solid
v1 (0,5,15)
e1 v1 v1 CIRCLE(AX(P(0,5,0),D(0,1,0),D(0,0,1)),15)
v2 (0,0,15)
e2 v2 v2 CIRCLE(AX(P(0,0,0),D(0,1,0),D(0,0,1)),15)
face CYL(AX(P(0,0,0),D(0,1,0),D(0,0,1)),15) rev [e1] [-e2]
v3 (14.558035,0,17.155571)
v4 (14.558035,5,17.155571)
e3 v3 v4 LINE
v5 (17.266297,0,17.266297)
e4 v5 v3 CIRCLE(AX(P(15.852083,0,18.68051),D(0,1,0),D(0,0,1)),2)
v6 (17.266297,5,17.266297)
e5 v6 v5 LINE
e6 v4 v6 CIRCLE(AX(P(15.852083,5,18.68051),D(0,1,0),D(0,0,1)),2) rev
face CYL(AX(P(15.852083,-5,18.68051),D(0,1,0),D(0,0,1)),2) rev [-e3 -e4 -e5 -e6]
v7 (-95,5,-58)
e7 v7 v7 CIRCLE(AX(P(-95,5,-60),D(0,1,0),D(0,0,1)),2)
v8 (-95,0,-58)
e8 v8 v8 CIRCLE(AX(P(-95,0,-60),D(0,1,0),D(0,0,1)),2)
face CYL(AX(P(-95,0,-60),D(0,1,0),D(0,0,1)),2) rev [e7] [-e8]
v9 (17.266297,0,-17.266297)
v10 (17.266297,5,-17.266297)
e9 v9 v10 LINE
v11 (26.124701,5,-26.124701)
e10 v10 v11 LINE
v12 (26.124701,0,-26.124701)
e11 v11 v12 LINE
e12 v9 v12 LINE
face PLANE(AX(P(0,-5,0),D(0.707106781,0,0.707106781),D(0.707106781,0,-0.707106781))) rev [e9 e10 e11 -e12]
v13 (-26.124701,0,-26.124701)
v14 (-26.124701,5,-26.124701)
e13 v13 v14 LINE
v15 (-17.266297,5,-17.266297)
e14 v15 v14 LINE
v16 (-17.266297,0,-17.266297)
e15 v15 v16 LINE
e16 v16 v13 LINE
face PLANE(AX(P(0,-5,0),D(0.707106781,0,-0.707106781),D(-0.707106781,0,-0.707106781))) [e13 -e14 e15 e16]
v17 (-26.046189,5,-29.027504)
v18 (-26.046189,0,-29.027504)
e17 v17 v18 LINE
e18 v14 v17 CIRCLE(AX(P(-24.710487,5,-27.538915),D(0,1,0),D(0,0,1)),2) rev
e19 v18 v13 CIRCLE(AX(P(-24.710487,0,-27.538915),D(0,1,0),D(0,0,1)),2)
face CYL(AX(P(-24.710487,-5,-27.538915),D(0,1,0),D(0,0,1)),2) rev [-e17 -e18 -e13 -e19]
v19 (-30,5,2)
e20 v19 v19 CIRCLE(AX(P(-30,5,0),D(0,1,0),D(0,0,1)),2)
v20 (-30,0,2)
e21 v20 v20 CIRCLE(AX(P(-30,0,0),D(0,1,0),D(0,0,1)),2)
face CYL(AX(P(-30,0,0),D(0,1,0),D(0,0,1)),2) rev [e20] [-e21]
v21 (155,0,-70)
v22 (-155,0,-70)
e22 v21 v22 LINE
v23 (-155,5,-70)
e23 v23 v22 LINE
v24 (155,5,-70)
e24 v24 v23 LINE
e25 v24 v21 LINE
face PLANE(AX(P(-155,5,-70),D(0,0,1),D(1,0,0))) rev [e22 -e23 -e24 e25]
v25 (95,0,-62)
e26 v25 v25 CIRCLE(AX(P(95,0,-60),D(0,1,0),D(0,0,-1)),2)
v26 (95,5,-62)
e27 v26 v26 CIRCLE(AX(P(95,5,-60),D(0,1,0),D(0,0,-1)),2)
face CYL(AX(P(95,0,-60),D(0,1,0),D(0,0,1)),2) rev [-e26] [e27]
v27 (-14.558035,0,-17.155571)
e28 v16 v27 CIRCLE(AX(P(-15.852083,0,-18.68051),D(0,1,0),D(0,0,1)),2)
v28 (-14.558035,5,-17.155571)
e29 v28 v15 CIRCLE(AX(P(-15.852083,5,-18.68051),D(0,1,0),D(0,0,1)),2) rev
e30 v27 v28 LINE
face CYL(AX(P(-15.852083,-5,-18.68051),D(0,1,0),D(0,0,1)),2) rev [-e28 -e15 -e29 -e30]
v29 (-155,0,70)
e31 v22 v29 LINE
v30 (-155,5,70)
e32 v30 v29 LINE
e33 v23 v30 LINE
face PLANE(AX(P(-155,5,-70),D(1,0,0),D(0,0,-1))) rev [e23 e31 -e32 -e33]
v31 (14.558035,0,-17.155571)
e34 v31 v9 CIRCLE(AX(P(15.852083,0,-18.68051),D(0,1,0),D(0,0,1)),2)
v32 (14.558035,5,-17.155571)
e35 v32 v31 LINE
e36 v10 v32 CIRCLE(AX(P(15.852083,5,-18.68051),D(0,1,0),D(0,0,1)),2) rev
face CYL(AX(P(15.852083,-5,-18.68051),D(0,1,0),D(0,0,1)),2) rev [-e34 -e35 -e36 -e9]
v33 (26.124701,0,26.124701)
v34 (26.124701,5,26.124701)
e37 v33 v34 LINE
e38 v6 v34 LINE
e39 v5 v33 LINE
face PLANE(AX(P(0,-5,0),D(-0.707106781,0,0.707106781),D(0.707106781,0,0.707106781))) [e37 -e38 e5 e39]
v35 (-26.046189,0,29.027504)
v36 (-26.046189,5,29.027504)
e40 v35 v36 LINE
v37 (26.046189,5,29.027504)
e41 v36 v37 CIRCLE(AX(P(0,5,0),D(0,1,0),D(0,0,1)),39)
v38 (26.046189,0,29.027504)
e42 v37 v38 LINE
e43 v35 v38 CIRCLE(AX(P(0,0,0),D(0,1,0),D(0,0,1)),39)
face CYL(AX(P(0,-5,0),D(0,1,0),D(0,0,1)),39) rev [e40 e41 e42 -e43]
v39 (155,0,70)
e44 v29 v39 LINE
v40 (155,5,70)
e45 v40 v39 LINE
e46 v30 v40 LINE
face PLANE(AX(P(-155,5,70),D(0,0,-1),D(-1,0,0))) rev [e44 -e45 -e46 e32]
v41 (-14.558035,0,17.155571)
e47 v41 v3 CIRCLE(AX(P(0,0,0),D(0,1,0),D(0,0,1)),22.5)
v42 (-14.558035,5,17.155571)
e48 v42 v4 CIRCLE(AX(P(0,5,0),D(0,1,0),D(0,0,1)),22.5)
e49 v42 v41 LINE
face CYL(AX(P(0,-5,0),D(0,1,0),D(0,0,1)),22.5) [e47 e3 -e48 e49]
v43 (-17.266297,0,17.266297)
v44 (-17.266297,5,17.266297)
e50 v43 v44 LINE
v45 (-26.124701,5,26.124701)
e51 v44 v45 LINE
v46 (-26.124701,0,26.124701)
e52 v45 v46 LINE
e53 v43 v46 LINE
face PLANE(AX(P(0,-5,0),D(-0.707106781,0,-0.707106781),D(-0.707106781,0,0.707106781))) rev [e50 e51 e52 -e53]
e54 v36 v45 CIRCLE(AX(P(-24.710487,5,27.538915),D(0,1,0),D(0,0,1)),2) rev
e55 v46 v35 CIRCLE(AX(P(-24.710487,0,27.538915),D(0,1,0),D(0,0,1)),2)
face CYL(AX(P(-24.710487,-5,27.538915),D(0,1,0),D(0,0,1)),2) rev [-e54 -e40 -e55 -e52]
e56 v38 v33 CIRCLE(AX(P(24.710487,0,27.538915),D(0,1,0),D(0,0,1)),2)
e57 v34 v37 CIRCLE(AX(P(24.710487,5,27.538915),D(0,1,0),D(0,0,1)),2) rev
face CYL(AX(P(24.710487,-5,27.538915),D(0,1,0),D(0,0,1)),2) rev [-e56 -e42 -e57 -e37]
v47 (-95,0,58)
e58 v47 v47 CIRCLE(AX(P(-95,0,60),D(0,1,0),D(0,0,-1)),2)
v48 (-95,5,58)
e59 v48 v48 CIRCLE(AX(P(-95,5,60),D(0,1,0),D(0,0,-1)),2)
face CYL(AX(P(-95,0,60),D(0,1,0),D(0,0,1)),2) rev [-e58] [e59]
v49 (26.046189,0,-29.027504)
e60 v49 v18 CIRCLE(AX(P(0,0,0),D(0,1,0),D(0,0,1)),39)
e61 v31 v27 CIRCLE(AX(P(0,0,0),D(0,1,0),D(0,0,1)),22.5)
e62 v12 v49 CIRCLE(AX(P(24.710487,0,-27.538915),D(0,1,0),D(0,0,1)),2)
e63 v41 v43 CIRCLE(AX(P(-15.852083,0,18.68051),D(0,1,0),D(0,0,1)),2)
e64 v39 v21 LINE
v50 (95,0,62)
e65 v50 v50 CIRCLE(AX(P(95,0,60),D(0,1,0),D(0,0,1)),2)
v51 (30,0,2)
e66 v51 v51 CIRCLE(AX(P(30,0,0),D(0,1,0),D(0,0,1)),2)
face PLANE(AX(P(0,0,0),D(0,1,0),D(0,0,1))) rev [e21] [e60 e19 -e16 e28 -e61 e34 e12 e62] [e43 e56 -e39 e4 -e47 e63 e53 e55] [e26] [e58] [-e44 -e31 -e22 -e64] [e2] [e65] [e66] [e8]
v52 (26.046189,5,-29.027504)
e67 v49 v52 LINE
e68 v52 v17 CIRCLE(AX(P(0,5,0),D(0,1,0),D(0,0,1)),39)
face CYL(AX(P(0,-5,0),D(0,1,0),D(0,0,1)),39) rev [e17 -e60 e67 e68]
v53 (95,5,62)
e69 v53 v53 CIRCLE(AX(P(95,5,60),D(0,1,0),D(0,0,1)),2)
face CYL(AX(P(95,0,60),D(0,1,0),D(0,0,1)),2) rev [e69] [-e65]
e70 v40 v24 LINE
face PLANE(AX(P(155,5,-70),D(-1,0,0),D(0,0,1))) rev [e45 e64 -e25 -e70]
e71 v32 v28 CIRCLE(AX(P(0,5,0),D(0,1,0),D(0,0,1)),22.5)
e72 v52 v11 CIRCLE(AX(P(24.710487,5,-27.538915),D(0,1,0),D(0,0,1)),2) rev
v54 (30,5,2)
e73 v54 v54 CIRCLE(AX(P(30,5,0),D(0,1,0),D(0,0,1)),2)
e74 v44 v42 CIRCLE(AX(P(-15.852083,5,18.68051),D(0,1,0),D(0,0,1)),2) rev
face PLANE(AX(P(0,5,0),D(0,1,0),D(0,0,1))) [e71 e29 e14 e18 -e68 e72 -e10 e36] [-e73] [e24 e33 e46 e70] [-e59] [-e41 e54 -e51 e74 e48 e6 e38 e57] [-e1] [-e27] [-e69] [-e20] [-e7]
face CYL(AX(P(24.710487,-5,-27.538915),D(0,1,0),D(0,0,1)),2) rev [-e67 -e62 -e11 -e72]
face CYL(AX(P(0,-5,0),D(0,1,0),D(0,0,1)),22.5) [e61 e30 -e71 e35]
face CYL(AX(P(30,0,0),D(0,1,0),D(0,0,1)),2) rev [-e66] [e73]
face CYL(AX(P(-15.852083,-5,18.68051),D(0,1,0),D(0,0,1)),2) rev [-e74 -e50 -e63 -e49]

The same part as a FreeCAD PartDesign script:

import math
import FreeCAD as App
import Part
import Sketcher

V = App.Vector


def edges_at(feature, points):
    """Names of the edges that pass closest to the given points."""
    edges = feature.Shape.Edges
    near = lambda p: min(range(len(edges)), key=lambda i: edges[i].distToShape(Part.Vertex(*p))[0])
    return sorted({f"Edge{near(p) + 1}" for p in points})


def add_polygon(sketch, points):
    """Adds a closed chain of lines whose ends are joined by coincident constraints."""
    first, n = sketch.GeometryCount, len(points)
    for a, b in zip(points, points[1:] + points[:1]):
        sketch.addGeometry(Part.LineSegment(App.Vector(*a, 0), App.Vector(*b, 0)), False)
    for i in range(n):
        sketch.addConstraint(Sketcher.Constraint("Coincident", first + i, 2, first + (i + 1) % n, 1))

doc = App.newDocument("Part")
body = doc.addObject("PartDesign::Body", "Body")

# Sketch on XZ plane
sketch1 = doc.addObject("Sketcher::SketchObject", "Sketch")
body.addObject(sketch1)
sketch1.AttachmentSupport = (doc.XZ_Plane, [""])
sketch1.MapMode = "FlatFace"
add_polygon(sketch1, [(-155, -70), (-155, 70), (155, 70), (155, -70)])  # lines 0-3
sketch1.addConstraint(Sketcher.Constraint("Vertical", 0))
sketch1.addConstraint(Sketcher.Constraint("Horizontal", 1))
sketch1.addConstraint(Sketcher.Constraint("Vertical", 2))
sketch1.addConstraint(Sketcher.Constraint("Horizontal", 3))
sketch1.addConstraint(Sketcher.Constraint("Symmetric", 0, 2, 2, 2, -1, 1))
sketch1.addConstraint(Sketcher.Constraint("DistanceX", 1, 1, 1, 2, 310.0))
sketch1.addConstraint(Sketcher.Constraint("DistanceY", 0, 1, 0, 2, 140.0))
pad1 = doc.addObject("PartDesign::Pad", "Pad")
body.addObject(pad1)
pad1.Profile = sketch1
pad1.Length = 5
pad1.Reversed = True

# Sketch on XZ plane
sketch2 = doc.addObject("Sketcher::SketchObject", "Sketch001")
body.addObject(sketch2)
sketch2.AttachmentSupport = (doc.XZ_Plane, [""])
sketch2.MapMode = "FlatFace"
sketch2.AttachmentOffset = App.Placement(V(0, 0, -5), App.Rotation())
sketch2.addGeometry(Part.Circle(V(0, 0, 0), V(0, 0, 1), 15), False)
sketch2.addConstraint(Sketcher.Constraint("Coincident", 0, 3, -1, 1))
sketch2.addConstraint(Sketcher.Constraint("Diameter", 0, 30.0))
pocket1 = doc.addObject("PartDesign::Pocket", "Pocket")
body.addObject(pocket1)
pocket1.Profile = sketch2
pocket1.Type = "ThroughAll"
pocket1.Reversed = True

# Sketch on XZ plane
sketch3 = doc.addObject("Sketcher::SketchObject", "Sketch002")
body.addObject(sketch3)
sketch3.AttachmentSupport = (doc.XZ_Plane, [""])
sketch3.MapMode = "FlatFace"
sketch3.AttachmentOffset = App.Placement(V(0, 0, -5), App.Rotation())
sketch3.addGeometry(Part.Circle(V(-95, -60, 0), V(0, 0, 1), 2), False)
sketch3.addGeometry(Part.Circle(V(95, -60, 0), V(0, 0, 1), 2), False)
sketch3.addGeometry(Part.Circle(V(95, 60, 0), V(0, 0, 1), 2), False)
sketch3.addGeometry(Part.Circle(V(-95, 60, 0), V(0, 0, 1), 2), False)
sketch3.addConstraint(Sketcher.Constraint("Equal", 0, 1))
sketch3.addConstraint(Sketcher.Constraint("Equal", 1, 2))
sketch3.addConstraint(Sketcher.Constraint("Equal", 2, 3))
sketch3.addConstraint(Sketcher.Constraint("Symmetric", 0, 3, 2, 3, -1, 1))
sketch3.addConstraint(Sketcher.Constraint("Symmetric", 1, 3, 3, 3, -1, 1))
sketch3.addConstraint(Sketcher.Constraint("Symmetric", 0, 3, 1, 3, -2))
sketch3.addConstraint(Sketcher.Constraint("Diameter", 0, 4.0))
sketch3.addConstraint(Sketcher.Constraint("DistanceX", 0, 3, -1, 1, 95.0))
sketch3.addConstraint(Sketcher.Constraint("DistanceY", 0, 3, -1, 1, 60.0))
pocket2 = doc.addObject("PartDesign::Pocket", "Pocket001")
body.addObject(pocket2)
pocket2.Profile = sketch3
pocket2.Type = "ThroughAll"
pocket2.Reversed = True

# Sketch on XZ plane
sketch4 = doc.addObject("Sketcher::SketchObject", "Sketch003")
body.addObject(sketch4)
sketch4.AttachmentSupport = (doc.XZ_Plane, [""])
sketch4.MapMode = "FlatFace"
sketch4.AttachmentOffset = App.Placement(V(0, 0, -5), App.Rotation())
sketch4.addGeometry(Part.LineSegment(V(27.577164, 27.577164, 0), V(15.909903, 15.909903, 0)), False)
sketch4.addGeometry(Part.ArcOfCircle(Part.Circle(V(0, 0, 0), V(0, 0, 1), 22.5), math.radians(45), math.radians(135)), False)
sketch4.addGeometry(Part.LineSegment(V(-15.909903, 15.909903, 0), V(-27.577164, 27.577164, 0)), False)
sketch4.addGeometry(Part.ArcOfCircle(Part.Circle(V(0, 0, 0), V(0, 0, 1), 39), math.radians(45), math.radians(135)), False)
sketch4.addGeometry(Part.ArcOfCircle(Part.Circle(V(0, 0, 0), V(0, 0, 1), 22.5), math.radians(-135), math.radians(-45)), False)
sketch4.addGeometry(Part.LineSegment(V(15.909903, -15.909903, 0), V(27.577164, -27.577164, 0)), False)
sketch4.addGeometry(Part.ArcOfCircle(Part.Circle(V(0, 0, 0), V(0, 0, 1), 39), math.radians(-135), math.radians(-45)), False)
sketch4.addGeometry(Part.LineSegment(V(-27.577164, -27.577164, 0), V(-15.909903, -15.909903, 0)), False)
sketch4.addConstraint(Sketcher.Constraint("Coincident", 0, 2, 1, 1))
sketch4.addConstraint(Sketcher.Constraint("Coincident", 1, 2, 2, 1))
sketch4.addConstraint(Sketcher.Constraint("Coincident", 2, 2, 3, 2))
sketch4.addConstraint(Sketcher.Constraint("Coincident", 3, 1, 0, 1))
sketch4.addConstraint(Sketcher.Constraint("Coincident", 4, 2, 5, 1))
sketch4.addConstraint(Sketcher.Constraint("Coincident", 5, 2, 6, 2))
sketch4.addConstraint(Sketcher.Constraint("Coincident", 6, 1, 7, 1))
sketch4.addConstraint(Sketcher.Constraint("Coincident", 7, 2, 4, 1))
sketch4.addConstraint(Sketcher.Constraint("Coincident", 1, 3, -1, 1))
sketch4.addConstraint(Sketcher.Constraint("Coincident", 3, 3, -1, 1))
sketch4.addConstraint(Sketcher.Constraint("Coincident", 4, 3, -1, 1))
sketch4.addConstraint(Sketcher.Constraint("Coincident", 6, 3, -1, 1))
sketch4.addConstraint(Sketcher.Constraint("Equal", 1, 4))
sketch4.addConstraint(Sketcher.Constraint("Equal", 3, 6))
sketch4.addConstraint(Sketcher.Constraint("Perpendicular", 0, 2))
sketch4.addConstraint(Sketcher.Constraint("Parallel", 2, 5))
sketch4.addConstraint(Sketcher.Constraint("Perpendicular", 5, 7))
sketch4.addConstraint(Sketcher.Constraint("Horizontal", 0, 2, 1, 2))
sketch4.addConstraint(Sketcher.Constraint("Horizontal", 2, 2, 3, 1))
sketch4.addConstraint(Sketcher.Constraint("Horizontal", 5, 2, 6, 1))
sketch4.addConstraint(Sketcher.Constraint("Vertical", 0, 2, 4, 2))
sketch4.addConstraint(Sketcher.Constraint("Radius", 3, 39.0))
sketch4.addConstraint(Sketcher.Constraint("Radius", 1, 22.5))
sketch4.addConstraint(Sketcher.Constraint("DistanceX", -1, 1, 0, 2, 15.909903))
pocket3 = doc.addObject("PartDesign::Pocket", "Pocket002")
body.addObject(pocket3)
pocket3.Profile = sketch4
pocket3.Length = 10
pocket3.Reversed = True
doc.recompute()

fillet = doc.addObject("PartDesign::Fillet", "Fillet")
body.addObject(fillet)
fillet.Base = (pocket3, edges_at(pocket3, [
    (-15.91, 2.5, 15.91),
    (15.91, 2.5, 15.91),
    (27.577, 2.5, 27.577),
    (-27.577, 2.5, 27.577),
    (15.91, 2.5, -15.91),
    (-15.91, 2.5, -15.91),
    (-27.577, 2.5, -27.577),
    (27.577, 2.5, -27.577),
]))
fillet.Radius = 2

# Sketch on XZ plane
sketch5 = doc.addObject("Sketcher::SketchObject", "Sketch004")
body.addObject(sketch5)
sketch5.AttachmentSupport = (doc.XZ_Plane, [""])
sketch5.MapMode = "FlatFace"
sketch5.AttachmentOffset = App.Placement(V(0, 0, -5), App.Rotation())
sketch5.addGeometry(Part.Circle(V(-30, 0, 0), V(0, 0, 1), 2), False)
sketch5.addGeometry(Part.Circle(V(30, 0, 0), V(0, 0, 1), 2), False)
sketch5.addConstraint(Sketcher.Constraint("Equal", 0, 1))
sketch5.addConstraint(Sketcher.Constraint("Symmetric", 0, 3, 1, 3, -1, 1))
sketch5.addConstraint(Sketcher.Constraint("PointOnObject", 0, 3, -1))
sketch5.addConstraint(Sketcher.Constraint("Diameter", 0, 4.0))
sketch5.addConstraint(Sketcher.Constraint("DistanceX", 0, 3, -1, 1, 30.0))
pocket4 = doc.addObject("PartDesign::Pocket", "Pocket003")
body.addObject(pocket4)
pocket4.Profile = sketch5
pocket4.Type = "ThroughAll"
pocket4.Reversed = True

doc.recompute()
